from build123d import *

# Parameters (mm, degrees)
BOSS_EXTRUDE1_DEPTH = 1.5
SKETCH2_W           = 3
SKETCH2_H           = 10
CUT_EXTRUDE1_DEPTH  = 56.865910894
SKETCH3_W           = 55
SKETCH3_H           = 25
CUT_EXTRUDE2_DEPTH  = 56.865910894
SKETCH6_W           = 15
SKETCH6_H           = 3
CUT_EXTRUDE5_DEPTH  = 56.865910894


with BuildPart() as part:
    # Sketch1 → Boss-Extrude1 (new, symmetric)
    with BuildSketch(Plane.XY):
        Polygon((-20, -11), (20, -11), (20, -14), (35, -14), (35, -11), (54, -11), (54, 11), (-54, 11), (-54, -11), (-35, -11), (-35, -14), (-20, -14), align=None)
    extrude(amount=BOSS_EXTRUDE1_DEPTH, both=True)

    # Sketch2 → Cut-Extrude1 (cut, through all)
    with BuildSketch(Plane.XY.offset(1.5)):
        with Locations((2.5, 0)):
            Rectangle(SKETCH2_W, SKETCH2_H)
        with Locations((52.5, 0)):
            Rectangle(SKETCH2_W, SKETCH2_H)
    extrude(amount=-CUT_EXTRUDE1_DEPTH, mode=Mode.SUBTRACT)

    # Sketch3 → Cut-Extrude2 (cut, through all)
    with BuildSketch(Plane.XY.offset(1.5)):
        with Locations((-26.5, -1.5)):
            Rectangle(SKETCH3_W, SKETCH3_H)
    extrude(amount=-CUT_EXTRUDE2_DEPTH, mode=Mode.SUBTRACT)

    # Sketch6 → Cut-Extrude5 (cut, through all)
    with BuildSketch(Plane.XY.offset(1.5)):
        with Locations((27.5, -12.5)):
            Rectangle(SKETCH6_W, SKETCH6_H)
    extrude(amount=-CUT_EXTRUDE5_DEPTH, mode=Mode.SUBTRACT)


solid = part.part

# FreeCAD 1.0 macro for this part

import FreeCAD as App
import Part
import Sketcher

V = App.Vector

doc = App.newDocument("Part")
body = doc.addObject("PartDesign::Body", "Body")

# Sketch on XY plane
sketch1 = body.newObject("Sketcher::SketchObject", "Sketch")
sketch1.AttachmentSupport = (doc.getObject("XY_Plane"), [""])
sketch1.MapMode = "FlatFace"
sketch1.addGeometry([
    Part.LineSegment(V(-20, -11, 0), V(20, -11, 0)),  # 0
    Part.LineSegment(V(20, -11, 0), V(20, -14, 0)),  # 1
    Part.LineSegment(V(20, -14, 0), V(35, -14, 0)),  # 2
    Part.LineSegment(V(35, -14, 0), V(35, -11, 0)),  # 3
    Part.LineSegment(V(35, -11, 0), V(54, -11, 0)),  # 4
    Part.LineSegment(V(54, -11, 0), V(54, 11, 0)),  # 5
    Part.LineSegment(V(54, 11, 0), V(-54, 11, 0)),  # 6
    Part.LineSegment(V(-54, 11, 0), V(-54, -11, 0)),  # 7
    Part.LineSegment(V(-54, -11, 0), V(-35, -11, 0)),  # 8
    Part.LineSegment(V(-35, -11, 0), V(-35, -14, 0)),  # 9
    Part.LineSegment(V(-35, -14, 0), V(-20, -14, 0)),  # 10
    Part.LineSegment(V(-20, -14, 0), V(-20, -11, 0)),  # 11
], False)
sketch1.addConstraint([
    Sketcher.Constraint("Coincident", 0, 2, 1, 1),
    Sketcher.Constraint("Coincident", 1, 2, 2, 1),
    Sketcher.Constraint("Coincident", 2, 2, 3, 1),
    Sketcher.Constraint("Coincident", 3, 2, 4, 1),
    Sketcher.Constraint("Coincident", 4, 2, 5, 1),
    Sketcher.Constraint("Coincident", 5, 2, 6, 1),
    Sketcher.Constraint("Coincident", 6, 2, 7, 1),
    Sketcher.Constraint("Coincident", 7, 2, 8, 1),
    Sketcher.Constraint("Coincident", 8, 2, 9, 1),
    Sketcher.Constraint("Coincident", 9, 2, 10, 1),
    Sketcher.Constraint("Coincident", 10, 2, 11, 1),
    Sketcher.Constraint("Coincident", 11, 2, 0, 1),
    Sketcher.Constraint("Horizontal", 0),
    Sketcher.Constraint("Vertical", 1),
    Sketcher.Constraint("Horizontal", 2),
    Sketcher.Constraint("Vertical", 3),
    Sketcher.Constraint("Horizontal", 4),
    Sketcher.Constraint("Vertical", 5),
    Sketcher.Constraint("Horizontal", 6),
    Sketcher.Constraint("Vertical", 7),
    Sketcher.Constraint("Horizontal", 8),
    Sketcher.Constraint("Vertical", 9),
    Sketcher.Constraint("Horizontal", 10),
    Sketcher.Constraint("Vertical", 11),
    Sketcher.Constraint("Symmetric", 4, 2, 6, 2, -1, 1),
    Sketcher.Constraint("Symmetric", 3, 2, 8, 2, -2),
    Sketcher.Constraint("Symmetric", 1, 2, 10, 2, -2),
    Sketcher.Constraint("Horizontal", 0, 2, 3, 2),
    Sketcher.Constraint("DistanceX", 0, 1, 0, 2, 40.0),
    Sketcher.Constraint("DistanceX", 2, 1, 2, 2, 15.0),
    Sketcher.Constraint("DistanceX", 4, 1, 4, 2, 19.0),
    Sketcher.Constraint("DistanceY", 1, 2, 1, 1, 3.0),
    Sketcher.Constraint("DistanceY", 5, 1, 5, 2, 22.0),
])
pad1 = body.newObject("PartDesign::Pad", "Pad")
pad1.Profile = sketch1
pad1.Length = 3
pad1.Midplane = True

# Sketch on XY plane
sketch2 = body.newObject("Sketcher::SketchObject", "Sketch001")
sketch2.AttachmentSupport = (doc.getObject("XY_Plane"), [""])
sketch2.MapMode = "FlatFace"
sketch2.AttachmentOffset = App.Placement(V(0, 0, 1.5), App.Rotation())
sketch2.addGeometry([
    Part.LineSegment(V(1, 5, 0), V(1, -5, 0)),  # 0
    Part.LineSegment(V(1, -5, 0), V(4, -5, 0)),  # 1
    Part.LineSegment(V(4, -5, 0), V(4, 5, 0)),  # 2
    Part.LineSegment(V(4, 5, 0), V(1, 5, 0)),  # 3
    Part.LineSegment(V(51, 5, 0), V(51, -5, 0)),  # 4
    Part.LineSegment(V(51, -5, 0), V(54, -5, 0)),  # 5
    Part.LineSegment(V(54, -5, 0), V(54, 5, 0)),  # 6
    Part.LineSegment(V(54, 5, 0), V(51, 5, 0)),  # 7
], False)
sketch2.addConstraint([
    Sketcher.Constraint("Coincident", 0, 2, 1, 1),
    Sketcher.Constraint("Coincident", 1, 2, 2, 1),
    Sketcher.Constraint("Coincident", 2, 2, 3, 1),
    Sketcher.Constraint("Coincident", 3, 2, 0, 1),
    Sketcher.Constraint("Coincident", 4, 2, 5, 1),
    Sketcher.Constraint("Coincident", 5, 2, 6, 1),
    Sketcher.Constraint("Coincident", 6, 2, 7, 1),
    Sketcher.Constraint("Coincident", 7, 2, 4, 1),
    Sketcher.Constraint("Vertical", 0),
    Sketcher.Constraint("Horizontal", 1),
    Sketcher.Constraint("Vertical", 2),
    Sketcher.Constraint("Horizontal", 3),
    Sketcher.Constraint("Vertical", 4),
    Sketcher.Constraint("Horizontal", 5),
    Sketcher.Constraint("Vertical", 6),
    Sketcher.Constraint("Horizontal", 7),
    Sketcher.Constraint("Horizontal", 1, 2, 4, 2),
    Sketcher.Constraint("Horizontal", 3, 2, 6, 2),
    Sketcher.Constraint("Equal", 3, 5),
    Sketcher.Constraint("DistanceX", 1, 1, 1, 2, 3.0),
    Sketcher.Constraint("DistanceY", 0, 2, 0, 1, 10.0),
    Sketcher.Constraint("DistanceX", -1, 1, 0, 2, 1.0),
    Sketcher.Constraint("DistanceY", 0, 2, -1, 1, 5.0),
    Sketcher.Constraint("DistanceX", -1, 1, 4, 2, 51.0),
])
pocket1 = body.newObject("PartDesign::Pocket", "Pocket")
pocket1.Profile = sketch2
pocket1.Type = "ThroughAll"

# Sketch on XY plane
sketch3 = body.newObject("Sketcher::SketchObject", "Sketch002")
sketch3.AttachmentSupport = (doc.getObject("XY_Plane"), [""])
sketch3.MapMode = "FlatFace"
sketch3.AttachmentOffset = App.Placement(V(0, 0, 1.5), App.Rotation())
sketch3.addGeometry([
    Part.LineSegment(V(-54, 11, 0), V(-54, -14, 0)),
    Part.LineSegment(V(-54, -14, 0), V(1, -14, 0)),
    Part.LineSegment(V(1, -14, 0), V(1, 11, 0)),
    Part.LineSegment(V(1, 11, 0), V(-54, 11, 0)),
], False)
sketch3.addConstraint([
    Sketcher.Constraint("Coincident", 0, 2, 1, 1),
    Sketcher.Constraint("Coincident", 1, 2, 2, 1),
    Sketcher.Constraint("Coincident", 2, 2, 3, 1),
    Sketcher.Constraint("Coincident", 3, 2, 0, 1),
    Sketcher.Constraint("Vertical", 0),
    Sketcher.Constraint("Horizontal", 1),
    Sketcher.Constraint("Vertical", 2),
    Sketcher.Constraint("Horizontal", 3),
    Sketcher.Constraint("DistanceX", 1, 1, 1, 2, 55.0),
    Sketcher.Constraint("DistanceY", 0, 2, 0, 1, 25.0),
    Sketcher.Constraint("DistanceX", 0, 2, -1, 1, 54.0),
    Sketcher.Constraint("DistanceY", 0, 2, -1, 1, 14.0),
])
pocket2 = body.newObject("PartDesign::Pocket", "Pocket001")
pocket2.Profile = sketch3
pocket2.Type = "ThroughAll"

# Sketch on XY plane
sketch4 = body.newObject("Sketcher::SketchObject", "Sketch003")
sketch4.AttachmentSupport = (doc.getObject("XY_Plane"), [""])
sketch4.MapMode = "FlatFace"
sketch4.AttachmentOffset = App.Placement(V(0, 0, 1.5), App.Rotation())
sketch4.addGeometry([
    Part.LineSegment(V(20, -11, 0), V(20, -14, 0)),
    Part.LineSegment(V(20, -14, 0), V(35, -14, 0)),
    Part.LineSegment(V(35, -14, 0), V(35, -11, 0)),
    Part.LineSegment(V(35, -11, 0), V(20, -11, 0)),
], False)
sketch4.addConstraint([
    Sketcher.Constraint("Coincident", 0, 2, 1, 1),
    Sketcher.Constraint("Coincident", 1, 2, 2, 1),
    Sketcher.Constraint("Coincident", 2, 2, 3, 1),
    Sketcher.Constraint("Coincident", 3, 2, 0, 1),
    Sketcher.Constraint("Vertical", 0),
    Sketcher.Constraint("Horizontal", 1),
    Sketcher.Constraint("Vertical", 2),
    Sketcher.Constraint("Horizontal", 3),
    Sketcher.Constraint("DistanceX", 1, 1, 1, 2, 15.0),
    Sketcher.Constraint("DistanceY", 0, 2, 0, 1, 3.0),
    Sketcher.Constraint("DistanceX", -1, 1, 0, 2, 20.0),
    Sketcher.Constraint("DistanceY", 0, 2, -1, 1, 14.0),
])
pocket3 = body.newObject("PartDesign::Pocket", "Pocket002")
pocket3.Profile = sketch4
pocket3.Type = "ThroughAll"

doc.recompute()
